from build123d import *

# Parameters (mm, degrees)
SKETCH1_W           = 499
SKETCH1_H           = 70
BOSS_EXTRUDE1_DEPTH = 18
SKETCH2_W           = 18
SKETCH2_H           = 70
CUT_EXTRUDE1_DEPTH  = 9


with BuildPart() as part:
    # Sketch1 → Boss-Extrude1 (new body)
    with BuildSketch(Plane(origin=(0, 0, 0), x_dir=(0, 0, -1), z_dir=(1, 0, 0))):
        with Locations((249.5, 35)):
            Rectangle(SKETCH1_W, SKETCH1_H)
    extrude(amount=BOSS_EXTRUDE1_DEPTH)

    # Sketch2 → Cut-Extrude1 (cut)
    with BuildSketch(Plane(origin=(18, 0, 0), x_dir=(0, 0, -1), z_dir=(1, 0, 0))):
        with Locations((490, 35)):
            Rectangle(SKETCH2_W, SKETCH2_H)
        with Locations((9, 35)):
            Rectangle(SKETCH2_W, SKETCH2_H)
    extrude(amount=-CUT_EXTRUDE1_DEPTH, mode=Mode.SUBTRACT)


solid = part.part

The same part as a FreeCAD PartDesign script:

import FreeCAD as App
import Part
import Sketcher

V = App.Vector
Q = App.Units.Quantity

doc = App.newDocument("Part")
body = doc.addObject("PartDesign::Body", "Body")

sketch1 = body.newObject("Sketcher::SketchObject", "Sketch")
sketch1.AttachmentSupport = (doc.getObject("YZ_Plane"), [""])
sketch1.MapMode = "FlatFace"
sketch1.addGeometry(Part.LineSegment(V(70, 0, 0), V(0, 0, 0)), False)
sketch1.addGeometry(Part.LineSegment(V(0, 0, 0), V(0, -499, 0)), False)
sketch1.addGeometry(Part.LineSegment(V(0, -499, 0), V(70, -499, 0)), False)
sketch1.addGeometry(Part.LineSegment(V(70, -499, 0), V(70, 0, 0)), False)
sketch1.addConstraint(Sketcher.Constraint("Coincident", 0, 2, 1, 1))
sketch1.addConstraint(Sketcher.Constraint("Coincident", 1, 2, 2, 1))
sketch1.addConstraint(Sketcher.Constraint("Coincident", 2, 2, 3, 1))
sketch1.addConstraint(Sketcher.Constraint("Coincident", 3, 2, 0, 1))
sketch1.addConstraint(Sketcher.Constraint("Horizontal", 0))
sketch1.addConstraint(Sketcher.Constraint("Vertical", 1))
sketch1.addConstraint(Sketcher.Constraint("Horizontal", 2))
sketch1.addConstraint(Sketcher.Constraint("Vertical", 3))
sketch1.addConstraint(Sketcher.Constraint("Coincident", 0, 2, -1, 1))
sketch1.addConstraint(Sketcher.Constraint("DistanceX", 0, 2, 0, 1, Q("70 mm")))
sketch1.addConstraint(Sketcher.Constraint("DistanceY", 1, 2, 1, 1, Q("499 mm")))
pad1 = body.newObject("PartDesign::Pad", "Pad")
pad1.Profile = sketch1
pad1.Length = 18

sketch2 = body.newObject("Sketcher::SketchObject", "Sketch001")
sketch2.AttachmentSupport = (doc.getObject("YZ_Plane"), [""])
sketch2.MapMode = "FlatFace"
sketch2.AttachmentOffset = App.Placement(V(0, 0, 18), App.Rotation())
sketch2.addGeometry(Part.LineSegment(V(70, -481, 0), V(0, -481, 0)), False)
sketch2.addGeometry(Part.LineSegment(V(0, -481, 0), V(0, -499, 0)), False)
sketch2.addGeometry(Part.LineSegment(V(0, -499, 0), V(70, -499, 0)), False)
sketch2.addGeometry(Part.LineSegment(V(70, -499, 0), V(70, -481, 0)), False)
sketch2.addGeometry(Part.LineSegment(V(70, 0, 0), V(0, 0, 0)), False)
sketch2.addGeometry(Part.LineSegment(V(0, 0, 0), V(0, -18, 0)), False)
sketch2.addGeometry(Part.LineSegment(V(0, -18, 0), V(70, -18, 0)), False)
sketch2.addGeometry(Part.LineSegment(V(70, -18, 0), V(70, 0, 0)), False)
sketch2.addConstraint(Sketcher.Constraint("Coincident", 0, 2, 1, 1))
sketch2.addConstraint(Sketcher.Constraint("Coincident", 1, 2, 2, 1))
sketch2.addConstraint(Sketcher.Constraint("Coincident", 2, 2, 3, 1))
sketch2.addConstraint(Sketcher.Constraint("Coincident", 3, 2, 0, 1))
sketch2.addConstraint(Sketcher.Constraint("Coincident", 4, 2, 5, 1))
sketch2.addConstraint(Sketcher.Constraint("Coincident", 5, 2, 6, 1))
sketch2.addConstraint(Sketcher.Constraint("Coincident", 6, 2, 7, 1))
sketch2.addConstraint(Sketcher.Constraint("Coincident", 7, 2, 4, 1))
sketch2.addConstraint(Sketcher.Constraint("Horizontal", 0))
sketch2.addConstraint(Sketcher.Constraint("Vertical", 1))
sketch2.addConstraint(Sketcher.Constraint("Horizontal", 2))
sketch2.addConstraint(Sketcher.Constraint("Vertical", 3))
sketch2.addConstraint(Sketcher.Constraint("Horizontal", 4))
sketch2.addConstraint(Sketcher.Constraint("Vertical", 5))
sketch2.addConstraint(Sketcher.Constraint("Horizontal", 6))
sketch2.addConstraint(Sketcher.Constraint("Vertical", 7))
sketch2.addConstraint(Sketcher.Constraint("Coincident", 4, 2, -1, 1))
sketch2.addConstraint(Sketcher.Constraint("PointOnObject", 0, 2, -2))
sketch2.addConstraint(Sketcher.Constraint("Vertical", 3, 2, 6, 2))
sketch2.addConstraint(Sketcher.Constraint("Equal", 3, 5))
sketch2.addConstraint(Sketcher.Constraint("DistanceX", 0, 2, 0, 1, Q("70 mm")))
sketch2.addConstraint(Sketcher.Constraint("DistanceY", 1, 2, 1, 1, Q("18 mm")))
sketch2.addConstraint(Sketcher.Constraint("DistanceY", 0, 2, -1, 1, Q("481 mm")))
pocket1 = body.newObject("PartDesign::Pocket", "Pocket")
pocket1.Profile = sketch2
pocket1.Length = 9

doc.recompute()
